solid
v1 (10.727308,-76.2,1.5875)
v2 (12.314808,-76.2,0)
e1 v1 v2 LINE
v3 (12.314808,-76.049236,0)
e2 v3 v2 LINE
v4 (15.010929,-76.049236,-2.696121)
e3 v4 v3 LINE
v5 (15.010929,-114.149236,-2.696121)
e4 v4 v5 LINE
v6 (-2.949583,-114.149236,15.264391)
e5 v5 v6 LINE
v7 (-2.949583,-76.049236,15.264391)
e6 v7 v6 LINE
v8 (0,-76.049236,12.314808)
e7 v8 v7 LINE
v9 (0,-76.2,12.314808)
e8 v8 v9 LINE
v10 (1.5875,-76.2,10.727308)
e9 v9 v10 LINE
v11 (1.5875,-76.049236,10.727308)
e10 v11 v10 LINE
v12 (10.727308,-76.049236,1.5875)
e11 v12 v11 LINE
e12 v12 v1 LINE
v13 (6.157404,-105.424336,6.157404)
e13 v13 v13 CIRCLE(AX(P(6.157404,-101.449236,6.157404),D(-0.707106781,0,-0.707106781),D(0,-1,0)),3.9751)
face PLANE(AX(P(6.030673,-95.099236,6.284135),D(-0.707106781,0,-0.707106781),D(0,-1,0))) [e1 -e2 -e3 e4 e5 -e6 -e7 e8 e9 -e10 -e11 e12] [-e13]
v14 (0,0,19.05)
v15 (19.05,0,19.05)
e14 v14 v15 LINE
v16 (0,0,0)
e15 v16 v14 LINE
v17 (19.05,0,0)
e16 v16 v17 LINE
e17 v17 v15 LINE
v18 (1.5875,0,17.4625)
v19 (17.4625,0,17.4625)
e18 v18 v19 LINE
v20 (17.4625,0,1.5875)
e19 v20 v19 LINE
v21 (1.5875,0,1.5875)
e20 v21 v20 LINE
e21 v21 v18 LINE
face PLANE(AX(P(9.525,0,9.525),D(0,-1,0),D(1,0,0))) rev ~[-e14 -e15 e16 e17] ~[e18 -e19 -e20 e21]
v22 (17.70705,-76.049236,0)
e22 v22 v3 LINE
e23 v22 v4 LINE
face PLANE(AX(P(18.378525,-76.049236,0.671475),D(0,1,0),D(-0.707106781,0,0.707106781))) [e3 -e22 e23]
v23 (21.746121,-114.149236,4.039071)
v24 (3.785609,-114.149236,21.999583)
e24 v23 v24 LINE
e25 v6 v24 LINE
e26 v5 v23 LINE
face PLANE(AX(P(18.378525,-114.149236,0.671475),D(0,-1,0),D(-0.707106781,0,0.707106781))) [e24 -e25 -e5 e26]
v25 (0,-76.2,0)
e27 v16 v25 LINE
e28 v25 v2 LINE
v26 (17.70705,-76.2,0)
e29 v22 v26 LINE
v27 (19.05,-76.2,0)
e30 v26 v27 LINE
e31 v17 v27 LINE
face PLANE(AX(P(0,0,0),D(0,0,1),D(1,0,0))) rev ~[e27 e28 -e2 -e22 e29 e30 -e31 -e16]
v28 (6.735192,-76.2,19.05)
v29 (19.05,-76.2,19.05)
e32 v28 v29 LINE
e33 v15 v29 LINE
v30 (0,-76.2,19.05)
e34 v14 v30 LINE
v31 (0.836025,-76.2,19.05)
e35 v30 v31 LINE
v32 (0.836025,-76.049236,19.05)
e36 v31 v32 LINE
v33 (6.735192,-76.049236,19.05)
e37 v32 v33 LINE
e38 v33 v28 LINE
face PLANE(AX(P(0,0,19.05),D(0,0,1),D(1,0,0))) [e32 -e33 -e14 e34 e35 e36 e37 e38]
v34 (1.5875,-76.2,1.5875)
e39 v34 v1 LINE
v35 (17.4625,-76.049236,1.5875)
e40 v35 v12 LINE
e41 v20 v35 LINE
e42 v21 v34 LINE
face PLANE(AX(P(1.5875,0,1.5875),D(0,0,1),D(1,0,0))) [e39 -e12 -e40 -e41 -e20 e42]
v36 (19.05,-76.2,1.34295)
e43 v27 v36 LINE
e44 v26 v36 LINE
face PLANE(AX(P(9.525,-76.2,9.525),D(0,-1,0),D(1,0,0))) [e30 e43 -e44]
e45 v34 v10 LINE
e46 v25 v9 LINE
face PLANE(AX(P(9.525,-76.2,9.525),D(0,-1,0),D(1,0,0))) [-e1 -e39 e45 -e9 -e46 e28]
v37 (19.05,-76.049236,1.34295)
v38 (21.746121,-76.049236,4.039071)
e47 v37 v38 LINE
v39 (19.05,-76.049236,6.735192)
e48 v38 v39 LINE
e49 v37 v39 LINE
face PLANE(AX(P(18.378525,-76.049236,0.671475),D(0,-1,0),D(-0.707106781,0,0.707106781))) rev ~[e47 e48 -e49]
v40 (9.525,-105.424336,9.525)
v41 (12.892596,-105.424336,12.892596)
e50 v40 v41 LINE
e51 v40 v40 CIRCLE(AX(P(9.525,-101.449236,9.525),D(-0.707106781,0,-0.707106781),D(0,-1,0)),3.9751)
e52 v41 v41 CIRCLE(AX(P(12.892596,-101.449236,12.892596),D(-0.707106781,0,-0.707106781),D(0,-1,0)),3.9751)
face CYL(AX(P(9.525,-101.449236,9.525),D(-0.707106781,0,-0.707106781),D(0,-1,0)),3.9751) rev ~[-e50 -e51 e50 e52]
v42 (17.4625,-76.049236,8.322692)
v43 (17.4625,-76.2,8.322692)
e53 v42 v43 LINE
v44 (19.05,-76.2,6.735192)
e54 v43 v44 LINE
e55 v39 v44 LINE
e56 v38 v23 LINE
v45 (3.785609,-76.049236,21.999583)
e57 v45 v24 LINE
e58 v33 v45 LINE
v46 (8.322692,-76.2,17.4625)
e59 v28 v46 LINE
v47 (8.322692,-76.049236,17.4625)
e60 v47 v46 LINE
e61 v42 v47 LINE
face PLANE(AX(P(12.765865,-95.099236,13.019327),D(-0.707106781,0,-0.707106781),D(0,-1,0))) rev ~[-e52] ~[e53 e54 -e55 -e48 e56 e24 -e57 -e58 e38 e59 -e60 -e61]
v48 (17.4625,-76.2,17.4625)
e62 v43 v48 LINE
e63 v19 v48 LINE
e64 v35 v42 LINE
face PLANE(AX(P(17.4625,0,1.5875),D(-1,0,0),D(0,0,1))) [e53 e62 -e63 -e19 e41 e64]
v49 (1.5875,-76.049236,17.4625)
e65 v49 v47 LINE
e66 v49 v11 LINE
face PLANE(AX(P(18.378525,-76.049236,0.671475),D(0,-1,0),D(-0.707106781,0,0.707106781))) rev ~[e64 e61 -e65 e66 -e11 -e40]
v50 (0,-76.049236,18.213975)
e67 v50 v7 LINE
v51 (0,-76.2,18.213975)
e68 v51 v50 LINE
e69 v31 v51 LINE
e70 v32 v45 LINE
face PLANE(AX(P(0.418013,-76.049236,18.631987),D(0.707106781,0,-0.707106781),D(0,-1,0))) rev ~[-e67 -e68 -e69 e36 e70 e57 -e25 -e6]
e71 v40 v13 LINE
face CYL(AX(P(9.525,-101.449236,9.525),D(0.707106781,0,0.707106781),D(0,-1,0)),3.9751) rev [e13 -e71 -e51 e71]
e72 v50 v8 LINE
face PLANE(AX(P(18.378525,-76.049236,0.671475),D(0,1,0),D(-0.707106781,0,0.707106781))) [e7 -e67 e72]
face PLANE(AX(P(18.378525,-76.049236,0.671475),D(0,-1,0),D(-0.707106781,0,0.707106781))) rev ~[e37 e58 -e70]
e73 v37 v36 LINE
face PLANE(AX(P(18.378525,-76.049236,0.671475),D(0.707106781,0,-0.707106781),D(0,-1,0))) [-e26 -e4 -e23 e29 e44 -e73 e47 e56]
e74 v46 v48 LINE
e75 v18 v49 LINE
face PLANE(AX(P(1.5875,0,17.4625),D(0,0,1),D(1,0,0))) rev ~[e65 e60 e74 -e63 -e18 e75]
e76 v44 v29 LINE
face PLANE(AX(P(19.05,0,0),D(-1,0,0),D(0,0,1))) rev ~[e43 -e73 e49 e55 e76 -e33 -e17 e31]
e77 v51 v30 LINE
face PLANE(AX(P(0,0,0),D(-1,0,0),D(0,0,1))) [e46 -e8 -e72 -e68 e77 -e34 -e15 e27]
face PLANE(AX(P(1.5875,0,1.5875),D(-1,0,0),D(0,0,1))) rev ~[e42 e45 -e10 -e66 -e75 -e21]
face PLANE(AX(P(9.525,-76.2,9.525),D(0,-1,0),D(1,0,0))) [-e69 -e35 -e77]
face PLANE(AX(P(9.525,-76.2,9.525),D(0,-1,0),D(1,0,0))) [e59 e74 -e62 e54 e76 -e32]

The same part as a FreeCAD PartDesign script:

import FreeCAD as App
import Part
import Sketcher
from FreeCAD import Vector
Q = App.Units.Quantity

doc = App.newDocument("Part")
body = doc.addObject("PartDesign::Body", "Body")

# Sketch on XZ plane
sketch1 = doc.addObject("Sketcher::SketchObject", "Sketch")
body.addObject(sketch1)
sketch1.AttachmentSupport = (doc.XZ_Plane, [""])
sketch1.MapMode = "FlatFace"
sketch1.addGeometry(Part.LineSegment(Vector(0, 19.05, 0), Vector(0, 0, 0)), False)
sketch1.addGeometry(Part.LineSegment(Vector(0, 0, 0), Vector(19.05, 0, 0)), False)
sketch1.addGeometry(Part.LineSegment(Vector(19.05, 0, 0), Vector(19.05, 19.05, 0)), False)
sketch1.addGeometry(Part.LineSegment(Vector(19.05, 19.05, 0), Vector(0, 19.05, 0)), False)
sketch1.addGeometry(Part.LineSegment(Vector(17.4625, 1.5875, 0), Vector(1.5875, 1.5875, 0)), False)
sketch1.addGeometry(Part.LineSegment(Vector(1.5875, 1.5875, 0), Vector(1.5875, 17.4625, 0)), False)
sketch1.addGeometry(Part.LineSegment(Vector(1.5875, 17.4625, 0), Vector(17.4625, 17.4625, 0)), False)
sketch1.addGeometry(Part.LineSegment(Vector(17.4625, 17.4625, 0), Vector(17.4625, 1.5875, 0)), False)
sketch1.addConstraint(Sketcher.Constraint("Coincident", 0, 2, 1, 1))
sketch1.addConstraint(Sketcher.Constraint("Coincident", 1, 2, 2, 1))
sketch1.addConstraint(Sketcher.Constraint("Coincident", 2, 2, 3, 1))
sketch1.addConstraint(Sketcher.Constraint("Coincident", 3, 2, 0, 1))
sketch1.addConstraint(Sketcher.Constraint("Coincident", 4, 2, 5, 1))
sketch1.addConstraint(Sketcher.Constraint("Coincident", 5, 2, 6, 1))
sketch1.addConstraint(Sketcher.Constraint("Coincident", 6, 2, 7, 1))
sketch1.addConstraint(Sketcher.Constraint("Coincident", 7, 2, 4, 1))
sketch1.addConstraint(Sketcher.Constraint("Vertical", 0))
sketch1.addConstraint(Sketcher.Constraint("Horizontal", 1))
sketch1.addConstraint(Sketcher.Constraint("Vertical", 2))
sketch1.addConstraint(Sketcher.Constraint("Horizontal", 3))
sketch1.addConstraint(Sketcher.Constraint("Horizontal", 4))
sketch1.addConstraint(Sketcher.Constraint("Vertical", 5))
sketch1.addConstraint(Sketcher.Constraint("Horizontal", 6))
sketch1.addConstraint(Sketcher.Constraint("Vertical", 7))
sketch1.addConstraint(Sketcher.Constraint("Coincident", 0, 2, -1, 1))
sketch1.addConstraint(Sketcher.Constraint("Equal", 3, 0))
sketch1.addConstraint(Sketcher.Constraint("Equal", 6, 5))
sketch1.addConstraint(Sketcher.Constraint("DistanceX", 1, 1, 1, 2, Q("0.75 in")))
sketch1.addConstraint(Sketcher.Constraint("DistanceX", 4, 2, 4, 1, Q("0.625 in")))
sketch1.addConstraint(Sketcher.Constraint("DistanceX", -1, 1, 4, 2, Q("0.0625 in")))
sketch1.addConstraint(Sketcher.Constraint("DistanceY", -1, 1, 4, 2, Q("0.0625 in")))
pad1 = doc.addObject("PartDesign::Pad", "Pad")
body.addObject(pad1)
pad1.Profile = sketch1
pad1.Length = Q("3 in")

# Sketch on an angled plane
sketch2 = doc.addObject("Sketcher::SketchObject", "Sketch001")
body.addObject(sketch2)
sketch2.Placement = App.Placement(Vector(9.525, 0, 9.525), App.Rotation(Vector(0, -1, 0), Vector(-0.707106781, 0, 0.707106781), Vector(-0.707106781, 0, -0.707106781), "ZXY"))
sketch2.addGeometry(Part.LineSegment(Vector(76.049236, 12.879225, 0), Vector(76.049236, -12.520775, 0)), False)
sketch2.addGeometry(Part.LineSegment(Vector(76.049236, -12.520775, 0), Vector(114.149236, -12.520775, 0)), False)
sketch2.addGeometry(Part.LineSegment(Vector(114.149236, -12.520775, 0), Vector(114.149236, 12.879225, 0)), False)
sketch2.addGeometry(Part.LineSegment(Vector(114.149236, 12.879225, 0), Vector(76.049236, 12.879225, 0)), False)
sketch2.addGeometry(Part.Circle(Vector(101.449236, 0, 0), Vector(0, 0, 1), 3.9751), False)
sketch2.addConstraint(Sketcher.Constraint("Coincident", 0, 2, 1, 1))
sketch2.addConstraint(Sketcher.Constraint("Coincident", 1, 2, 2, 1))
sketch2.addConstraint(Sketcher.Constraint("Coincident", 2, 2, 3, 1))
sketch2.addConstraint(Sketcher.Constraint("Coincident", 3, 2, 0, 1))
sketch2.addConstraint(Sketcher.Constraint("Vertical", 0))
sketch2.addConstraint(Sketcher.Constraint("Horizontal", 1))
sketch2.addConstraint(Sketcher.Constraint("Vertical", 2))
sketch2.addConstraint(Sketcher.Constraint("Horizontal", 3))
sketch2.addConstraint(Sketcher.Constraint("PointOnObject", 4, 3, -1))
sketch2.addConstraint(Sketcher.Constraint("DistanceY", 0, 2, 0, 1, Q("1 in")))
sketch2.addConstraint(Sketcher.Constraint("Diameter", 4, Q("0.313 in")))
sketch2.addConstraint(Sketcher.Constraint("DistanceX", 1, 1, 1, 2, Q("1.5 in")))
sketch2.addConstraint(Sketcher.Constraint("DistanceX", 0, 2, 4, 3, Q("1 in")))
sketch2.addConstraint(Sketcher.Constraint("DistanceX", -1, 1, 4, 3, Q("101.449236 mm")))
sketch2.addConstraint(Sketcher.Constraint("DistanceY", 0, 2, -1, 1, Q("12.520775 mm")))
pad2 = doc.addObject("PartDesign::Pad", "Pad001")
body.addObject(pad2)
pad2.Profile = sketch2
pad2.Type = "TwoLengths"
pad2.Length = Q("0.1875 in")
pad2.Length2 = Q("0.1875 in")

doc.recompute()
